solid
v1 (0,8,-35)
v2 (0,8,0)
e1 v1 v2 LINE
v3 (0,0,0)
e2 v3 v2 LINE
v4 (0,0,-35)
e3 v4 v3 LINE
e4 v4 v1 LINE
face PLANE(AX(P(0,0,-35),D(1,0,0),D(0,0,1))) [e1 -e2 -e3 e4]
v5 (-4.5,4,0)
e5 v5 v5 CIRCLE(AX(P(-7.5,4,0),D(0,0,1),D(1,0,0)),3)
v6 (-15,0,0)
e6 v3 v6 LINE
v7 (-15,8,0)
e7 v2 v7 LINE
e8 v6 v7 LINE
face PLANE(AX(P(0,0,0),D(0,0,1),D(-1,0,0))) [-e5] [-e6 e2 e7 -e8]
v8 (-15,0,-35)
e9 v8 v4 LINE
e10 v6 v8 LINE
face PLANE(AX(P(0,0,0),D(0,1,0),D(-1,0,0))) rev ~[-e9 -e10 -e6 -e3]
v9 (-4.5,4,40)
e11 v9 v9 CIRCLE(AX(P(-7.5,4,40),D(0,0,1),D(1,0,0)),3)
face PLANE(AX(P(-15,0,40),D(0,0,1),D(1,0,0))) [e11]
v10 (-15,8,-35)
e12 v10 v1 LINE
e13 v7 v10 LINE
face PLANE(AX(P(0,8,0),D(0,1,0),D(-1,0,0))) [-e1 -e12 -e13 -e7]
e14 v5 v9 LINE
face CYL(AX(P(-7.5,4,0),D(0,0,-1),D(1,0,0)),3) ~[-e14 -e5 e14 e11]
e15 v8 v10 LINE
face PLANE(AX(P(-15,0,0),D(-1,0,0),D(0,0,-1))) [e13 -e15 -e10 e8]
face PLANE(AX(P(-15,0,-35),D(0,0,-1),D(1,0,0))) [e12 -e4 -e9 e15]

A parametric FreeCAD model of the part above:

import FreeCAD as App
import Part
import Sketcher

V = App.Vector
Q = App.Units.Quantity

doc = App.newDocument("Part")
body = doc.addObject("PartDesign::Body", "Body")

# Sketch on XZ plane
sketch1 = body.newObject("Sketcher::SketchObject", "Sketch")
sketch1.AttachmentSupport = (doc.getObject("XZ_Plane"), [""])
sketch1.MapMode = "FlatFace"
sketch1.addGeometry(Part.LineSegment(V(-15, 0, 0), V(0, 0, 0)), False)
sketch1.addGeometry(Part.LineSegment(V(0, 0, 0), V(0, -35, 0)), False)
sketch1.addGeometry(Part.LineSegment(V(0, -35, 0), V(-15, -35, 0)), False)
sketch1.addGeometry(Part.LineSegment(V(-15, -35, 0), V(-15, 0, 0)), False)
sketch1.addConstraint(Sketcher.Constraint("Coincident", 0, 2, 1, 1))
sketch1.addConstraint(Sketcher.Constraint("Coincident", 1, 2, 2, 1))
sketch1.addConstraint(Sketcher.Constraint("Coincident", 2, 2, 3, 1))
sketch1.addConstraint(Sketcher.Constraint("Coincident", 3, 2, 0, 1))
sketch1.addConstraint(Sketcher.Constraint("Horizontal", 0))
sketch1.addConstraint(Sketcher.Constraint("Vertical", 1))
sketch1.addConstraint(Sketcher.Constraint("Horizontal", 2))
sketch1.addConstraint(Sketcher.Constraint("Vertical", 3))
sketch1.addConstraint(Sketcher.Constraint("Coincident", 0, 2, -1, 1))
sketch1.addConstraint(Sketcher.Constraint("DistanceX", 0, 1, 0, 2, Q("15 mm")))
sketch1.addConstraint(Sketcher.Constraint("DistanceY", 1, 2, 1, 1, Q("35 mm")))
pad1 = body.newObject("PartDesign::Pad", "Pad")
pad1.Profile = sketch1
pad1.Length = 8
pad1.Reversed = True

# Sketch on XY plane
sketch2 = body.newObject("Sketcher::SketchObject", "Sketch001")
sketch2.AttachmentSupport = (doc.getObject("XY_Plane"), [""])
sketch2.MapMode = "FlatFace"
sketch2.addGeometry(Part.Circle(V(-7.5, 4, 0), V(0, 0, 1), 3), False)
sketch2.addConstraint(Sketcher.Constraint("Diameter", 0, Q("6 mm")))
sketch2.addConstraint(Sketcher.Constraint("DistanceY", -1, 1, 0, 3, Q("4 mm")))
sketch2.addConstraint(Sketcher.Constraint("DistanceX", 0, 3, -1, 1, Q("7.5 mm")))
pad2 = body.newObject("PartDesign::Pad", "Pad001")
pad2.Profile = sketch2
pad2.Length = 40

doc.recompute()
